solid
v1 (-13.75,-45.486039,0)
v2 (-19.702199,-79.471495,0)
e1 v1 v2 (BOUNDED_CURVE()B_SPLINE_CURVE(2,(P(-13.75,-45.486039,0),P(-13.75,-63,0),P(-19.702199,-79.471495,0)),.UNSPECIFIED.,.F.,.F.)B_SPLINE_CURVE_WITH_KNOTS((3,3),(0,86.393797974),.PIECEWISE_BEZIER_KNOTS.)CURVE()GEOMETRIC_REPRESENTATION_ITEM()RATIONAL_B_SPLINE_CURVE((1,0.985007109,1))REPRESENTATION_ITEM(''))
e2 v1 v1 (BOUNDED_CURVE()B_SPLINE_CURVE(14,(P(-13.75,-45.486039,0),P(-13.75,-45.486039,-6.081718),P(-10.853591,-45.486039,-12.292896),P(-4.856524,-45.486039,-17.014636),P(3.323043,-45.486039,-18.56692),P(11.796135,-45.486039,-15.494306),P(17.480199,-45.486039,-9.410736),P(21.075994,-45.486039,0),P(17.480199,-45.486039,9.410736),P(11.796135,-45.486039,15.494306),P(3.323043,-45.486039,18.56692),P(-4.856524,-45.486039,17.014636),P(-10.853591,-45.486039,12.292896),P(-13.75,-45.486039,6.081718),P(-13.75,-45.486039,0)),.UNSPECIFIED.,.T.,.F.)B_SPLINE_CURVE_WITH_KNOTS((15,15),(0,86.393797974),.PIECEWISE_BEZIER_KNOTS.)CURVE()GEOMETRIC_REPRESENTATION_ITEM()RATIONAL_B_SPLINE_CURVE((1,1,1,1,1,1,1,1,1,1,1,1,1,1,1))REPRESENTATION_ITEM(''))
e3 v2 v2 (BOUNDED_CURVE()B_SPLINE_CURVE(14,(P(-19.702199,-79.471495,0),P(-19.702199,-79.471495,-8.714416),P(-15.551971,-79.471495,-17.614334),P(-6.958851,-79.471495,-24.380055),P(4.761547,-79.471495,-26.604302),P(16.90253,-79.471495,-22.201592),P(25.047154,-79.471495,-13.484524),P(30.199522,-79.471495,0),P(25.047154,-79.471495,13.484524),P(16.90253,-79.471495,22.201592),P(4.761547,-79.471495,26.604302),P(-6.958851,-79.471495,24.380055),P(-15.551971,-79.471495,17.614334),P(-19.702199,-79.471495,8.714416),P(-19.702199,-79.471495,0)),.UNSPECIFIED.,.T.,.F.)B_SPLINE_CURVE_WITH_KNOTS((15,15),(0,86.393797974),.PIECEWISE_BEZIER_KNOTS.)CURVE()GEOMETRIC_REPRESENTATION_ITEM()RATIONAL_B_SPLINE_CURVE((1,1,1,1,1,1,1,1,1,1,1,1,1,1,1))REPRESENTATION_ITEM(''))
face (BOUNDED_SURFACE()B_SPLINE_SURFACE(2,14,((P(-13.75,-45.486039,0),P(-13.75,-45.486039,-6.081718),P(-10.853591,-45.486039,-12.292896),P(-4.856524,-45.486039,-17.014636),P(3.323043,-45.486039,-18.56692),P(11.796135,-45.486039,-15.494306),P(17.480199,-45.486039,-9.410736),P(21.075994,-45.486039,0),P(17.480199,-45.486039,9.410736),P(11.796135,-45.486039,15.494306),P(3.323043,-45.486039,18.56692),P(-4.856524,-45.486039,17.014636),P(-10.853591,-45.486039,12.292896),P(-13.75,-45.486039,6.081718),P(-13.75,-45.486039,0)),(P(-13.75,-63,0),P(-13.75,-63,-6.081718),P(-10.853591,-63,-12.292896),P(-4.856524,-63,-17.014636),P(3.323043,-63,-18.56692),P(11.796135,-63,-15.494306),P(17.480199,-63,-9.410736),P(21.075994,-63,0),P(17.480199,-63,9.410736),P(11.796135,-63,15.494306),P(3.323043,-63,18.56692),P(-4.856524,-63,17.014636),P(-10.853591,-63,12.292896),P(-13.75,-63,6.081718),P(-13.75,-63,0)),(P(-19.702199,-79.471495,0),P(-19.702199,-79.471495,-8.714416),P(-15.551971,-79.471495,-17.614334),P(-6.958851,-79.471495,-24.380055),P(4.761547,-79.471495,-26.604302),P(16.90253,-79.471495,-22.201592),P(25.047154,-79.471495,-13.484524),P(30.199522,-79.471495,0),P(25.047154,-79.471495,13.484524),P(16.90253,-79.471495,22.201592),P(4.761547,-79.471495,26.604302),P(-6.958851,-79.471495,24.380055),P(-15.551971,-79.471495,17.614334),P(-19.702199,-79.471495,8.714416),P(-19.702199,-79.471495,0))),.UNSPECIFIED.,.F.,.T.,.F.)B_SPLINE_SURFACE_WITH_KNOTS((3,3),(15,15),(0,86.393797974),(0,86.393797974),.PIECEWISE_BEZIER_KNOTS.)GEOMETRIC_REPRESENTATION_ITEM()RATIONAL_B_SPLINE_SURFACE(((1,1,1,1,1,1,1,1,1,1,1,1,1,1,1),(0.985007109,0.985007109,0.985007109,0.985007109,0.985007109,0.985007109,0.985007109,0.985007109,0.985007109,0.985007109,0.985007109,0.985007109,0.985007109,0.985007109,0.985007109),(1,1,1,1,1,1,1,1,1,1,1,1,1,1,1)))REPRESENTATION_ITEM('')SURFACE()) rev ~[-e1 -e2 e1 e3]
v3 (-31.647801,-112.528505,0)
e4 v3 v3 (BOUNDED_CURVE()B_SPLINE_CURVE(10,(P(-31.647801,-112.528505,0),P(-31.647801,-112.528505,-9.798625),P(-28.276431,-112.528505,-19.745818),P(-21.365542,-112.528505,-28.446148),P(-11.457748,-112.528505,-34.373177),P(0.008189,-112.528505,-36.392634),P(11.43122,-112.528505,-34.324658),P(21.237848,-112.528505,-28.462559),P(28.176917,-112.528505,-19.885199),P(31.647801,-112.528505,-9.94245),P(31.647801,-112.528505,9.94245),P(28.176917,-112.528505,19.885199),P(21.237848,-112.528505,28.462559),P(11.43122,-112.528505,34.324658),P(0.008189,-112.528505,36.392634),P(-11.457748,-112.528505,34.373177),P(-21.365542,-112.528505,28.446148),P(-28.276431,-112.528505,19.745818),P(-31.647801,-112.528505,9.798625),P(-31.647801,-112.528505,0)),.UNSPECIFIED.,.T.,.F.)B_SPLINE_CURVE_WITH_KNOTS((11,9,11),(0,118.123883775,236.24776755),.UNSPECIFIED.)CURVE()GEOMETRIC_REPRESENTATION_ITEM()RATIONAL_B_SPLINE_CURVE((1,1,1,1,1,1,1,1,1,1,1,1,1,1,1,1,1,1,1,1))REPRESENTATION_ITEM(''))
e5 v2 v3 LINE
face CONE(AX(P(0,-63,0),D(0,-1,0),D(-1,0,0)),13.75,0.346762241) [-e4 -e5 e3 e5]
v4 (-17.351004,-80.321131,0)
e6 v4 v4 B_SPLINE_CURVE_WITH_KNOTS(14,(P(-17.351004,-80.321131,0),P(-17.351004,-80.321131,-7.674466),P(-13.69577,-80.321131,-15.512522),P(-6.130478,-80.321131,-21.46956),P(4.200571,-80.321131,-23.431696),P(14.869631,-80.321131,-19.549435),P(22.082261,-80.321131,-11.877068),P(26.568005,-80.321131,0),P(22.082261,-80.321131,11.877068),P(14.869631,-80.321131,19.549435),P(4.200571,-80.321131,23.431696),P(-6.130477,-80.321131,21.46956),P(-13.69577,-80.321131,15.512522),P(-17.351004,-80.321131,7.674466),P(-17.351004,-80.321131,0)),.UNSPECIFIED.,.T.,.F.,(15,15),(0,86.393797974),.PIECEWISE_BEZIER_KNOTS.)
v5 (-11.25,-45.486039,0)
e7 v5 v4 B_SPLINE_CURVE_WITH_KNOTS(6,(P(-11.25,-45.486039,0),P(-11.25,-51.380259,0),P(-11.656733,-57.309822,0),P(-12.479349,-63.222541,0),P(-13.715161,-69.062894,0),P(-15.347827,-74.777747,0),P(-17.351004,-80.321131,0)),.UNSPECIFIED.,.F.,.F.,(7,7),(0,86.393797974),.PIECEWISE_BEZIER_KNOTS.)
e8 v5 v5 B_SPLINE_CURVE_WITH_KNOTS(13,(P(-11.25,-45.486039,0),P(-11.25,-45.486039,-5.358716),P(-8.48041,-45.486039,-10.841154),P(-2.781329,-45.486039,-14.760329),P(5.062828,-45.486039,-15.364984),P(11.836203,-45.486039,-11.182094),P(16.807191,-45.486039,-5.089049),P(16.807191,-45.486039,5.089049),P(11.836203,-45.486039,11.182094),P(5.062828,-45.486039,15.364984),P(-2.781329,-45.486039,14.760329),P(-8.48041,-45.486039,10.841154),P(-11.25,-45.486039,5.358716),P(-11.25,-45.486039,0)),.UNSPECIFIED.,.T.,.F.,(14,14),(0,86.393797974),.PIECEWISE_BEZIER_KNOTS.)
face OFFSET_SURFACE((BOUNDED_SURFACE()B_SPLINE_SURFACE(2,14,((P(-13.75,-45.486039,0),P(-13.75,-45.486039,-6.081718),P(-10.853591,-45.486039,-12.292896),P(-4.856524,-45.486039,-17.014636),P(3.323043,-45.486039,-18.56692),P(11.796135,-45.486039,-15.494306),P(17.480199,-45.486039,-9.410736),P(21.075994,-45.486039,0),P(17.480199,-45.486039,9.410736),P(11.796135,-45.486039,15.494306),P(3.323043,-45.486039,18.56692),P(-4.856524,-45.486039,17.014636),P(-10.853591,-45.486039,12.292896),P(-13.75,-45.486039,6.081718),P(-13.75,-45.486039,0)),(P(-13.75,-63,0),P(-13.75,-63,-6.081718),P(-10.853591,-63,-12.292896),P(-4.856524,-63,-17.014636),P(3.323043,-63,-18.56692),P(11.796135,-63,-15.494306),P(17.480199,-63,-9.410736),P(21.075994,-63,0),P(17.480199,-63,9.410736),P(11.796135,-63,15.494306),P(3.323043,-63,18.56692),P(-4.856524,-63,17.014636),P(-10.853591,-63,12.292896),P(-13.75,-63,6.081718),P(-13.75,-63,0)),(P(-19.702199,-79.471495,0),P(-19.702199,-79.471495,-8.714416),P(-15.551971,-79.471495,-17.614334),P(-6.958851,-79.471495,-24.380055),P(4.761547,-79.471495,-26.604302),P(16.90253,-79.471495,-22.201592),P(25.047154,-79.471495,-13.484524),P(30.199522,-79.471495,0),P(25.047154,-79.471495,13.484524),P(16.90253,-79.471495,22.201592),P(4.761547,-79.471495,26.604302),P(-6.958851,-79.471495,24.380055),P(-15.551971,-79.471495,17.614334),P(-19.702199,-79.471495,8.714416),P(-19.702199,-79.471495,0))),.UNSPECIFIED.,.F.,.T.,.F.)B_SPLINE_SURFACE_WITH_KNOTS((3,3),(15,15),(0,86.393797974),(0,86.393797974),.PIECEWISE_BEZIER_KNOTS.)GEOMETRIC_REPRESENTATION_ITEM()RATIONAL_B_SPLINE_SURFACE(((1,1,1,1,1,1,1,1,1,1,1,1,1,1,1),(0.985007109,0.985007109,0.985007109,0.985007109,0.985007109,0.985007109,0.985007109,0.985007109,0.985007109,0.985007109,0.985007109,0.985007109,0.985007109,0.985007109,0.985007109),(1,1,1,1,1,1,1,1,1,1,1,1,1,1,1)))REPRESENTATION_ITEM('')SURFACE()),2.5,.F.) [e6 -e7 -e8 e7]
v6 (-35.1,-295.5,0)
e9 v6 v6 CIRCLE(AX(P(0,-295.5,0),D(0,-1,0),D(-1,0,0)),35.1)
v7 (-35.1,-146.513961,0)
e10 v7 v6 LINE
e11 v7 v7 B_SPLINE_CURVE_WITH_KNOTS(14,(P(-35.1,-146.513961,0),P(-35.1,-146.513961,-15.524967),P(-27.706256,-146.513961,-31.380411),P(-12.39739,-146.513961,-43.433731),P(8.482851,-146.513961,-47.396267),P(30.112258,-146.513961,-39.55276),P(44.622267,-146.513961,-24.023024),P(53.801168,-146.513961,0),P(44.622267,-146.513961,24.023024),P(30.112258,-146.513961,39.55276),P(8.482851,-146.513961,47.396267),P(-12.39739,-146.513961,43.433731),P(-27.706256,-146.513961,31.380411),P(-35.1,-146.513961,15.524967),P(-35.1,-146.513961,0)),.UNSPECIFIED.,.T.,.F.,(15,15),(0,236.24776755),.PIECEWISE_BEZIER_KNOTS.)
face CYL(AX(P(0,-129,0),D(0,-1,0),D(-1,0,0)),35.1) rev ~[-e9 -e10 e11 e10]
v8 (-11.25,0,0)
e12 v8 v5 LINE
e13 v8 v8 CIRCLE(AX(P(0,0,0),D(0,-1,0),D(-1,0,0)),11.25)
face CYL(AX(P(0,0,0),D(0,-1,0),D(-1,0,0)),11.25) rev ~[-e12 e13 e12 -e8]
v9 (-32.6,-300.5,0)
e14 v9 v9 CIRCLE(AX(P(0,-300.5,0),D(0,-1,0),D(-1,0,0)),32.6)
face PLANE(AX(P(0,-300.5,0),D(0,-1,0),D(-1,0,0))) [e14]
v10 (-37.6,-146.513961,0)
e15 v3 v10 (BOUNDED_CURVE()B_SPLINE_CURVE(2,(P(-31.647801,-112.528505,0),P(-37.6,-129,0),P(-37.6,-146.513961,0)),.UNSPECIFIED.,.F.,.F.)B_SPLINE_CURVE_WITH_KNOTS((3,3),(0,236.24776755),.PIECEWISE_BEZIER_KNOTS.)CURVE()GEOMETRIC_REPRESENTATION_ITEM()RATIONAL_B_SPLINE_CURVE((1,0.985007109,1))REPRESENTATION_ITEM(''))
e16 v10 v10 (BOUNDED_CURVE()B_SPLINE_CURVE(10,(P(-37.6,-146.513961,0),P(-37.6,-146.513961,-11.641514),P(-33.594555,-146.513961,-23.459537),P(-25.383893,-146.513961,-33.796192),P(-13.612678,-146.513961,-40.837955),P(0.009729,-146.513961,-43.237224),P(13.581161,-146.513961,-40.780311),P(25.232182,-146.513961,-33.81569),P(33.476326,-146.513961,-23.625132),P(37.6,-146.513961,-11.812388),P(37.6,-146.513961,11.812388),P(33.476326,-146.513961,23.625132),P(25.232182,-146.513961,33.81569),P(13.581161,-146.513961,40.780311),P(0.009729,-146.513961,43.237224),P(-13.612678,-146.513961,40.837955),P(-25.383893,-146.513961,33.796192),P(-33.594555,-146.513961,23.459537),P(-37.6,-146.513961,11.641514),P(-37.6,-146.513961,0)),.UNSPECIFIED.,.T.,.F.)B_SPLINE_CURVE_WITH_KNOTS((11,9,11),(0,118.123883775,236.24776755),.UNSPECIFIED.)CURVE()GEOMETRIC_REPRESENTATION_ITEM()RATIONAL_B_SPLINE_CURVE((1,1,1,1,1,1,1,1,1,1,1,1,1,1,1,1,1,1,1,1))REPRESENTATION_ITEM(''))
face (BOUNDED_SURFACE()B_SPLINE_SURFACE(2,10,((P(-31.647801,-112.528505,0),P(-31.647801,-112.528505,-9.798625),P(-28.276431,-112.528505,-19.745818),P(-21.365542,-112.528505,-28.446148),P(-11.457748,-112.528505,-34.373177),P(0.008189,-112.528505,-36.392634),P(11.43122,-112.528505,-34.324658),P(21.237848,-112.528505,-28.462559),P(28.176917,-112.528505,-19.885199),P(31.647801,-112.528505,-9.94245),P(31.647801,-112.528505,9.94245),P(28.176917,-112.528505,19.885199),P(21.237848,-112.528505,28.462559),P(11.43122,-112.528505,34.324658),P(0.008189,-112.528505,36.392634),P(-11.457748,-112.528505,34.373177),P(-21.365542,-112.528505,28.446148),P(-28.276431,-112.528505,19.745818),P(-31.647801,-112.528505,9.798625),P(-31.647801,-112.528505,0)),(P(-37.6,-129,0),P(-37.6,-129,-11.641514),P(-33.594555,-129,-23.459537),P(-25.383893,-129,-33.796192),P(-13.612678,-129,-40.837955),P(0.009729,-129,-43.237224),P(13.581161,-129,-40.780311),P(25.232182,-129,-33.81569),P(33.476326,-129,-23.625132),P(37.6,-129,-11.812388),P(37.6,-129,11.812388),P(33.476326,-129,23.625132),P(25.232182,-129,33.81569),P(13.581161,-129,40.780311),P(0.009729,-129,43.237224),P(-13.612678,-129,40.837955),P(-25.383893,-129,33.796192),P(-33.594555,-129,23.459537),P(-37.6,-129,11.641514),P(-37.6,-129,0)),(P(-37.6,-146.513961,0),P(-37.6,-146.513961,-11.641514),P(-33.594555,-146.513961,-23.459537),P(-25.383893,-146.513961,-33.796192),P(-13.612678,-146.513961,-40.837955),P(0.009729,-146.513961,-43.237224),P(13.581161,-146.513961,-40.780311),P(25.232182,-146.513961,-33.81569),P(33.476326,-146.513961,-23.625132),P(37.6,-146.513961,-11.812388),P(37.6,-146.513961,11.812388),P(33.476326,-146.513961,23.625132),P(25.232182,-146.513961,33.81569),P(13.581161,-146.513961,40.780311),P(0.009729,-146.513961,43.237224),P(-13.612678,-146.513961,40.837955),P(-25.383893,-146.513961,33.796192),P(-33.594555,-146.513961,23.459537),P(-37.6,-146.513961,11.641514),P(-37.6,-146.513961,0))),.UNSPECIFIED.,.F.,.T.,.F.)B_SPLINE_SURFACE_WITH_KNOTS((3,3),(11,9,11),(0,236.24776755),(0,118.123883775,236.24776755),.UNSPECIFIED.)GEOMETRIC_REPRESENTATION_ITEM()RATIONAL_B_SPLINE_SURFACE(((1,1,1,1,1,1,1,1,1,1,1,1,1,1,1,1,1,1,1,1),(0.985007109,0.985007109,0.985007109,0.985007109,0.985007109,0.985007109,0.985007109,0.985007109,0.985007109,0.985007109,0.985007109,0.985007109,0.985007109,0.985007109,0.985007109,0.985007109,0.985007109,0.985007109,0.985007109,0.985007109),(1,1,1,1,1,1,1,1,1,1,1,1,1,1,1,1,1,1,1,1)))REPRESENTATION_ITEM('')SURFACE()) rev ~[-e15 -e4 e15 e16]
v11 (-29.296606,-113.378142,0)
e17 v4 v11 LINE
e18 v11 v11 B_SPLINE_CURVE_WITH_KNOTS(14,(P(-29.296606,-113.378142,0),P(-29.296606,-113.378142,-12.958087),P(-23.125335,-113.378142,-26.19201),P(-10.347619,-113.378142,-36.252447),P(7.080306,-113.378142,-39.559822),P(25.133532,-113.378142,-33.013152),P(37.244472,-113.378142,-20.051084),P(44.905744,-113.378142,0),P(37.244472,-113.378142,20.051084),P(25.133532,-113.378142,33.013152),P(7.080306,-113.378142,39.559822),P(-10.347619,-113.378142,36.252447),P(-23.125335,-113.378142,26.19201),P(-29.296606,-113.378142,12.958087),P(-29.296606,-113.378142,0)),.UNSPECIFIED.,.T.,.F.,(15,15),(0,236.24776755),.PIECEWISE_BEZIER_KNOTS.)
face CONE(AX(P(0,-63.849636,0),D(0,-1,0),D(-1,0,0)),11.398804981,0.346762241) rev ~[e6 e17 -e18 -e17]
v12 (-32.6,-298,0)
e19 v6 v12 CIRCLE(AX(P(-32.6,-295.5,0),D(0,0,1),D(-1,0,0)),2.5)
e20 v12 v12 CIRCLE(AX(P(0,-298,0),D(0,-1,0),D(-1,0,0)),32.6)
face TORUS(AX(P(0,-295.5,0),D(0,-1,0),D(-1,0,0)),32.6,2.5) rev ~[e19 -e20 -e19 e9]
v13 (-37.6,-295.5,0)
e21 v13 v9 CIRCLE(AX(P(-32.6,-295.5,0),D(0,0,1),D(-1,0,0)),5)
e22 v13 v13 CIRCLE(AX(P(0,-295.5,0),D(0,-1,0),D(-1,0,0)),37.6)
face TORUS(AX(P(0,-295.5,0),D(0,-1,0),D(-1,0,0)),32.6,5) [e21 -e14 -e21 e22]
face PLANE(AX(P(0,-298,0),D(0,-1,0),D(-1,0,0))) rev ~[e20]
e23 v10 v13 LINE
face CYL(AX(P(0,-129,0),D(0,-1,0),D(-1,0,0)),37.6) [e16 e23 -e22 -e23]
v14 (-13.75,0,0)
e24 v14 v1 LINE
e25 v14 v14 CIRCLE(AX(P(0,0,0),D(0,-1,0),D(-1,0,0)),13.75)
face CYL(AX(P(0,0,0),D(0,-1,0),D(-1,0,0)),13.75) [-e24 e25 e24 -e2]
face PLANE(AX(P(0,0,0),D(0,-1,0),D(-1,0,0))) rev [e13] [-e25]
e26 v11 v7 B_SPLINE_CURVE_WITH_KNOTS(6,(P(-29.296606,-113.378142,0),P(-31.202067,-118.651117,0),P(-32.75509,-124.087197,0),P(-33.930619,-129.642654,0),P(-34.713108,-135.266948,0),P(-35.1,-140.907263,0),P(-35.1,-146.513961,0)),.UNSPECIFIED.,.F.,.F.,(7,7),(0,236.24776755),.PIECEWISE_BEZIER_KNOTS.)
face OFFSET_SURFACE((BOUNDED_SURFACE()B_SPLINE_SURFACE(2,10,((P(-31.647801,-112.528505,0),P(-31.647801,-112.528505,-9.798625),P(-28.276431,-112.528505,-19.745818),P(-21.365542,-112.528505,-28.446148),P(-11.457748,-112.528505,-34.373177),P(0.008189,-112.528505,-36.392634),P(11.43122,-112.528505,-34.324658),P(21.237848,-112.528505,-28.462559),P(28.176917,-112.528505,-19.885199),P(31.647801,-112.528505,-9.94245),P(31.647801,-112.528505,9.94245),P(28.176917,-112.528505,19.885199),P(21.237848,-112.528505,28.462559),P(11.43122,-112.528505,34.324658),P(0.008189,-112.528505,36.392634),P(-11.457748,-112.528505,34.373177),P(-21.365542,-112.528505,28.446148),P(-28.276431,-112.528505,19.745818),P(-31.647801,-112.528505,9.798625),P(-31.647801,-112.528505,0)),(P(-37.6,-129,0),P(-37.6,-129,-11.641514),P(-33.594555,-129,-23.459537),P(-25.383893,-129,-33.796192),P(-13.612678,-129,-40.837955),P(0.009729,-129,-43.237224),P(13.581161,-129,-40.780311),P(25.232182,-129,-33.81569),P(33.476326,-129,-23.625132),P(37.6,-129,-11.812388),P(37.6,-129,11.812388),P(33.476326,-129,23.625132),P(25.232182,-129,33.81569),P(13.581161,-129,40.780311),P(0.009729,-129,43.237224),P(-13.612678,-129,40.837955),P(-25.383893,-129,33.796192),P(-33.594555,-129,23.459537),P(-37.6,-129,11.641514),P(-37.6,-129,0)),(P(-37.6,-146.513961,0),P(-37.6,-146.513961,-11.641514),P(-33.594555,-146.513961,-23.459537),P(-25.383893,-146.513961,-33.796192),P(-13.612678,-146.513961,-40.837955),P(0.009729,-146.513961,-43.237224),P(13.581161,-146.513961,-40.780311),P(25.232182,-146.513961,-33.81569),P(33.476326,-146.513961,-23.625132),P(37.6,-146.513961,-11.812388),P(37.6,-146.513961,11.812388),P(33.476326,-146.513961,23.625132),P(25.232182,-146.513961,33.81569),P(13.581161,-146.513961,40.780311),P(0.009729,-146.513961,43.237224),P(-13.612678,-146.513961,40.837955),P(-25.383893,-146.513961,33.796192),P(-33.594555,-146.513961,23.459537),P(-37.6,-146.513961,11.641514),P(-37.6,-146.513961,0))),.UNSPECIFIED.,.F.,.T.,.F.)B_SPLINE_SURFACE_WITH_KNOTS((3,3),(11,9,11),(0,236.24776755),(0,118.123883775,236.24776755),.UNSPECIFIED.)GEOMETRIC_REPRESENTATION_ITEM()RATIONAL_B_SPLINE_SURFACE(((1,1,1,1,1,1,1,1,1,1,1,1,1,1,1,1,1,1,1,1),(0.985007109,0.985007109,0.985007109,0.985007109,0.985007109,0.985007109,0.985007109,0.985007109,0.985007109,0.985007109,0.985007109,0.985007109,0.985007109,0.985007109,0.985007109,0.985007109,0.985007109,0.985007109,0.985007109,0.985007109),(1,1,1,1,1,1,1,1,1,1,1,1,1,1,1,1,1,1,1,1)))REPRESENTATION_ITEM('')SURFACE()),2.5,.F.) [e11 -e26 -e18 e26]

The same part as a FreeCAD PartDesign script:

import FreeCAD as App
import Part
import Sketcher

V = App.Vector


def edges_at(feature, points):
    """Names of the edges that pass closest to the given points."""
    edges = feature.Shape.Edges
    near = lambda p: min(range(len(edges)), key=lambda i: edges[i].distToShape(Part.Vertex(*p))[0])
    return sorted({f"Edge{near(p) + 1}" for p in points})


def faces_at(feature, points):
    """Names of the faces that lie closest to the given points."""
    faces = feature.Shape.Faces
    near = lambda p: min(range(len(faces)), key=lambda i: faces[i].distToShape(Part.Vertex(*p))[0])
    return sorted({f"Face{near(p) + 1}" for p in points})

doc = App.newDocument("Part")
body = doc.addObject("PartDesign::Body", "Body")

# Sketch on XY plane
sketch1 = doc.addObject("Sketcher::SketchObject", "Sketch")
body.addObject(sketch1)
sketch1.AttachmentSupport = (doc.XY_Plane, [""])
sketch1.MapMode = "FlatFace"
sketch1.addGeometry([
    Part.LineSegment(V(0, -300.5, 0), V(0, 0, 0)),  # 0
    Part.LineSegment(V(0, 0, 0), V(-13.75, 0, 0)),  # 1
    Part.LineSegment(V(-13.75, 0, 0), V(-13.75, -63, 0)),  # 2
    Part.LineSegment(V(-13.75, -63, 0), V(-37.6, -129, 0)),  # 3
    Part.LineSegment(V(-37.6, -129, 0), V(-37.6, -300.5, 0)),  # 4
    Part.LineSegment(V(-37.6, -300.5, 0), V(0, -300.5, 0)),  # 5
], False)
sketch1.addConstraint([
    Sketcher.Constraint("Coincident", 0, 2, 1, 1),
    Sketcher.Constraint("Coincident", 1, 2, 2, 1),
    Sketcher.Constraint("Coincident", 2, 2, 3, 1),
    Sketcher.Constraint("Coincident", 3, 2, 4, 1),
    Sketcher.Constraint("Coincident", 4, 2, 5, 1),
    Sketcher.Constraint("Coincident", 5, 2, 0, 1),
    Sketcher.Constraint("Vertical", 0),
    Sketcher.Constraint("Horizontal", 1),
    Sketcher.Constraint("Vertical", 2),
    Sketcher.Constraint("Vertical", 4),
    Sketcher.Constraint("Horizontal", 5),
    Sketcher.Constraint("Coincident", 0, 2, -1, 1),
    Sketcher.Constraint("DistanceY", 2, 2, 2, 1, 63.0),
    Sketcher.Constraint("DistanceX", 5, 1, 5, 2, 37.6),
    Sketcher.Constraint("DistanceY", 0, 1, 0, 2, 300.5),
    Sketcher.Constraint("DistanceY", 4, 2, 4, 1, 171.5),
    Sketcher.Constraint("DistanceX", 1, 2, 1, 1, 13.75),
])
revolution = doc.addObject("PartDesign::Revolution", "Revolution")
body.addObject(revolution)
revolution.Profile = sketch1
revolution.ReferenceAxis = (sketch1, ["V_Axis"])
revolution.Angle = 360
doc.recompute()

fillet = doc.addObject("PartDesign::Fillet", "Fillet")
body.addObject(fillet)
fillet.Base = (revolution, edges_at(revolution, [(13.75, -63, 0), (37.6, -129, 0)]))
fillet.Radius = 100
doc.recompute()

fillet2 = doc.addObject("PartDesign::Fillet", "Fillet001")
body.addObject(fillet2)
fillet2.Base = (fillet, edges_at(fillet, [(37.6, -300.5, 0)]))
fillet2.Radius = 5
doc.recompute()

thickness = doc.addObject("PartDesign::Thickness", "Thickness")
body.addObject(thickness)
thickness.Base = (fillet2, faces_at(fillet2, [(0, 0, 0)]))
thickness.Value = 2.5
thickness.Reversed = True
thickness.Join = "Arc"

doc.recompute()
